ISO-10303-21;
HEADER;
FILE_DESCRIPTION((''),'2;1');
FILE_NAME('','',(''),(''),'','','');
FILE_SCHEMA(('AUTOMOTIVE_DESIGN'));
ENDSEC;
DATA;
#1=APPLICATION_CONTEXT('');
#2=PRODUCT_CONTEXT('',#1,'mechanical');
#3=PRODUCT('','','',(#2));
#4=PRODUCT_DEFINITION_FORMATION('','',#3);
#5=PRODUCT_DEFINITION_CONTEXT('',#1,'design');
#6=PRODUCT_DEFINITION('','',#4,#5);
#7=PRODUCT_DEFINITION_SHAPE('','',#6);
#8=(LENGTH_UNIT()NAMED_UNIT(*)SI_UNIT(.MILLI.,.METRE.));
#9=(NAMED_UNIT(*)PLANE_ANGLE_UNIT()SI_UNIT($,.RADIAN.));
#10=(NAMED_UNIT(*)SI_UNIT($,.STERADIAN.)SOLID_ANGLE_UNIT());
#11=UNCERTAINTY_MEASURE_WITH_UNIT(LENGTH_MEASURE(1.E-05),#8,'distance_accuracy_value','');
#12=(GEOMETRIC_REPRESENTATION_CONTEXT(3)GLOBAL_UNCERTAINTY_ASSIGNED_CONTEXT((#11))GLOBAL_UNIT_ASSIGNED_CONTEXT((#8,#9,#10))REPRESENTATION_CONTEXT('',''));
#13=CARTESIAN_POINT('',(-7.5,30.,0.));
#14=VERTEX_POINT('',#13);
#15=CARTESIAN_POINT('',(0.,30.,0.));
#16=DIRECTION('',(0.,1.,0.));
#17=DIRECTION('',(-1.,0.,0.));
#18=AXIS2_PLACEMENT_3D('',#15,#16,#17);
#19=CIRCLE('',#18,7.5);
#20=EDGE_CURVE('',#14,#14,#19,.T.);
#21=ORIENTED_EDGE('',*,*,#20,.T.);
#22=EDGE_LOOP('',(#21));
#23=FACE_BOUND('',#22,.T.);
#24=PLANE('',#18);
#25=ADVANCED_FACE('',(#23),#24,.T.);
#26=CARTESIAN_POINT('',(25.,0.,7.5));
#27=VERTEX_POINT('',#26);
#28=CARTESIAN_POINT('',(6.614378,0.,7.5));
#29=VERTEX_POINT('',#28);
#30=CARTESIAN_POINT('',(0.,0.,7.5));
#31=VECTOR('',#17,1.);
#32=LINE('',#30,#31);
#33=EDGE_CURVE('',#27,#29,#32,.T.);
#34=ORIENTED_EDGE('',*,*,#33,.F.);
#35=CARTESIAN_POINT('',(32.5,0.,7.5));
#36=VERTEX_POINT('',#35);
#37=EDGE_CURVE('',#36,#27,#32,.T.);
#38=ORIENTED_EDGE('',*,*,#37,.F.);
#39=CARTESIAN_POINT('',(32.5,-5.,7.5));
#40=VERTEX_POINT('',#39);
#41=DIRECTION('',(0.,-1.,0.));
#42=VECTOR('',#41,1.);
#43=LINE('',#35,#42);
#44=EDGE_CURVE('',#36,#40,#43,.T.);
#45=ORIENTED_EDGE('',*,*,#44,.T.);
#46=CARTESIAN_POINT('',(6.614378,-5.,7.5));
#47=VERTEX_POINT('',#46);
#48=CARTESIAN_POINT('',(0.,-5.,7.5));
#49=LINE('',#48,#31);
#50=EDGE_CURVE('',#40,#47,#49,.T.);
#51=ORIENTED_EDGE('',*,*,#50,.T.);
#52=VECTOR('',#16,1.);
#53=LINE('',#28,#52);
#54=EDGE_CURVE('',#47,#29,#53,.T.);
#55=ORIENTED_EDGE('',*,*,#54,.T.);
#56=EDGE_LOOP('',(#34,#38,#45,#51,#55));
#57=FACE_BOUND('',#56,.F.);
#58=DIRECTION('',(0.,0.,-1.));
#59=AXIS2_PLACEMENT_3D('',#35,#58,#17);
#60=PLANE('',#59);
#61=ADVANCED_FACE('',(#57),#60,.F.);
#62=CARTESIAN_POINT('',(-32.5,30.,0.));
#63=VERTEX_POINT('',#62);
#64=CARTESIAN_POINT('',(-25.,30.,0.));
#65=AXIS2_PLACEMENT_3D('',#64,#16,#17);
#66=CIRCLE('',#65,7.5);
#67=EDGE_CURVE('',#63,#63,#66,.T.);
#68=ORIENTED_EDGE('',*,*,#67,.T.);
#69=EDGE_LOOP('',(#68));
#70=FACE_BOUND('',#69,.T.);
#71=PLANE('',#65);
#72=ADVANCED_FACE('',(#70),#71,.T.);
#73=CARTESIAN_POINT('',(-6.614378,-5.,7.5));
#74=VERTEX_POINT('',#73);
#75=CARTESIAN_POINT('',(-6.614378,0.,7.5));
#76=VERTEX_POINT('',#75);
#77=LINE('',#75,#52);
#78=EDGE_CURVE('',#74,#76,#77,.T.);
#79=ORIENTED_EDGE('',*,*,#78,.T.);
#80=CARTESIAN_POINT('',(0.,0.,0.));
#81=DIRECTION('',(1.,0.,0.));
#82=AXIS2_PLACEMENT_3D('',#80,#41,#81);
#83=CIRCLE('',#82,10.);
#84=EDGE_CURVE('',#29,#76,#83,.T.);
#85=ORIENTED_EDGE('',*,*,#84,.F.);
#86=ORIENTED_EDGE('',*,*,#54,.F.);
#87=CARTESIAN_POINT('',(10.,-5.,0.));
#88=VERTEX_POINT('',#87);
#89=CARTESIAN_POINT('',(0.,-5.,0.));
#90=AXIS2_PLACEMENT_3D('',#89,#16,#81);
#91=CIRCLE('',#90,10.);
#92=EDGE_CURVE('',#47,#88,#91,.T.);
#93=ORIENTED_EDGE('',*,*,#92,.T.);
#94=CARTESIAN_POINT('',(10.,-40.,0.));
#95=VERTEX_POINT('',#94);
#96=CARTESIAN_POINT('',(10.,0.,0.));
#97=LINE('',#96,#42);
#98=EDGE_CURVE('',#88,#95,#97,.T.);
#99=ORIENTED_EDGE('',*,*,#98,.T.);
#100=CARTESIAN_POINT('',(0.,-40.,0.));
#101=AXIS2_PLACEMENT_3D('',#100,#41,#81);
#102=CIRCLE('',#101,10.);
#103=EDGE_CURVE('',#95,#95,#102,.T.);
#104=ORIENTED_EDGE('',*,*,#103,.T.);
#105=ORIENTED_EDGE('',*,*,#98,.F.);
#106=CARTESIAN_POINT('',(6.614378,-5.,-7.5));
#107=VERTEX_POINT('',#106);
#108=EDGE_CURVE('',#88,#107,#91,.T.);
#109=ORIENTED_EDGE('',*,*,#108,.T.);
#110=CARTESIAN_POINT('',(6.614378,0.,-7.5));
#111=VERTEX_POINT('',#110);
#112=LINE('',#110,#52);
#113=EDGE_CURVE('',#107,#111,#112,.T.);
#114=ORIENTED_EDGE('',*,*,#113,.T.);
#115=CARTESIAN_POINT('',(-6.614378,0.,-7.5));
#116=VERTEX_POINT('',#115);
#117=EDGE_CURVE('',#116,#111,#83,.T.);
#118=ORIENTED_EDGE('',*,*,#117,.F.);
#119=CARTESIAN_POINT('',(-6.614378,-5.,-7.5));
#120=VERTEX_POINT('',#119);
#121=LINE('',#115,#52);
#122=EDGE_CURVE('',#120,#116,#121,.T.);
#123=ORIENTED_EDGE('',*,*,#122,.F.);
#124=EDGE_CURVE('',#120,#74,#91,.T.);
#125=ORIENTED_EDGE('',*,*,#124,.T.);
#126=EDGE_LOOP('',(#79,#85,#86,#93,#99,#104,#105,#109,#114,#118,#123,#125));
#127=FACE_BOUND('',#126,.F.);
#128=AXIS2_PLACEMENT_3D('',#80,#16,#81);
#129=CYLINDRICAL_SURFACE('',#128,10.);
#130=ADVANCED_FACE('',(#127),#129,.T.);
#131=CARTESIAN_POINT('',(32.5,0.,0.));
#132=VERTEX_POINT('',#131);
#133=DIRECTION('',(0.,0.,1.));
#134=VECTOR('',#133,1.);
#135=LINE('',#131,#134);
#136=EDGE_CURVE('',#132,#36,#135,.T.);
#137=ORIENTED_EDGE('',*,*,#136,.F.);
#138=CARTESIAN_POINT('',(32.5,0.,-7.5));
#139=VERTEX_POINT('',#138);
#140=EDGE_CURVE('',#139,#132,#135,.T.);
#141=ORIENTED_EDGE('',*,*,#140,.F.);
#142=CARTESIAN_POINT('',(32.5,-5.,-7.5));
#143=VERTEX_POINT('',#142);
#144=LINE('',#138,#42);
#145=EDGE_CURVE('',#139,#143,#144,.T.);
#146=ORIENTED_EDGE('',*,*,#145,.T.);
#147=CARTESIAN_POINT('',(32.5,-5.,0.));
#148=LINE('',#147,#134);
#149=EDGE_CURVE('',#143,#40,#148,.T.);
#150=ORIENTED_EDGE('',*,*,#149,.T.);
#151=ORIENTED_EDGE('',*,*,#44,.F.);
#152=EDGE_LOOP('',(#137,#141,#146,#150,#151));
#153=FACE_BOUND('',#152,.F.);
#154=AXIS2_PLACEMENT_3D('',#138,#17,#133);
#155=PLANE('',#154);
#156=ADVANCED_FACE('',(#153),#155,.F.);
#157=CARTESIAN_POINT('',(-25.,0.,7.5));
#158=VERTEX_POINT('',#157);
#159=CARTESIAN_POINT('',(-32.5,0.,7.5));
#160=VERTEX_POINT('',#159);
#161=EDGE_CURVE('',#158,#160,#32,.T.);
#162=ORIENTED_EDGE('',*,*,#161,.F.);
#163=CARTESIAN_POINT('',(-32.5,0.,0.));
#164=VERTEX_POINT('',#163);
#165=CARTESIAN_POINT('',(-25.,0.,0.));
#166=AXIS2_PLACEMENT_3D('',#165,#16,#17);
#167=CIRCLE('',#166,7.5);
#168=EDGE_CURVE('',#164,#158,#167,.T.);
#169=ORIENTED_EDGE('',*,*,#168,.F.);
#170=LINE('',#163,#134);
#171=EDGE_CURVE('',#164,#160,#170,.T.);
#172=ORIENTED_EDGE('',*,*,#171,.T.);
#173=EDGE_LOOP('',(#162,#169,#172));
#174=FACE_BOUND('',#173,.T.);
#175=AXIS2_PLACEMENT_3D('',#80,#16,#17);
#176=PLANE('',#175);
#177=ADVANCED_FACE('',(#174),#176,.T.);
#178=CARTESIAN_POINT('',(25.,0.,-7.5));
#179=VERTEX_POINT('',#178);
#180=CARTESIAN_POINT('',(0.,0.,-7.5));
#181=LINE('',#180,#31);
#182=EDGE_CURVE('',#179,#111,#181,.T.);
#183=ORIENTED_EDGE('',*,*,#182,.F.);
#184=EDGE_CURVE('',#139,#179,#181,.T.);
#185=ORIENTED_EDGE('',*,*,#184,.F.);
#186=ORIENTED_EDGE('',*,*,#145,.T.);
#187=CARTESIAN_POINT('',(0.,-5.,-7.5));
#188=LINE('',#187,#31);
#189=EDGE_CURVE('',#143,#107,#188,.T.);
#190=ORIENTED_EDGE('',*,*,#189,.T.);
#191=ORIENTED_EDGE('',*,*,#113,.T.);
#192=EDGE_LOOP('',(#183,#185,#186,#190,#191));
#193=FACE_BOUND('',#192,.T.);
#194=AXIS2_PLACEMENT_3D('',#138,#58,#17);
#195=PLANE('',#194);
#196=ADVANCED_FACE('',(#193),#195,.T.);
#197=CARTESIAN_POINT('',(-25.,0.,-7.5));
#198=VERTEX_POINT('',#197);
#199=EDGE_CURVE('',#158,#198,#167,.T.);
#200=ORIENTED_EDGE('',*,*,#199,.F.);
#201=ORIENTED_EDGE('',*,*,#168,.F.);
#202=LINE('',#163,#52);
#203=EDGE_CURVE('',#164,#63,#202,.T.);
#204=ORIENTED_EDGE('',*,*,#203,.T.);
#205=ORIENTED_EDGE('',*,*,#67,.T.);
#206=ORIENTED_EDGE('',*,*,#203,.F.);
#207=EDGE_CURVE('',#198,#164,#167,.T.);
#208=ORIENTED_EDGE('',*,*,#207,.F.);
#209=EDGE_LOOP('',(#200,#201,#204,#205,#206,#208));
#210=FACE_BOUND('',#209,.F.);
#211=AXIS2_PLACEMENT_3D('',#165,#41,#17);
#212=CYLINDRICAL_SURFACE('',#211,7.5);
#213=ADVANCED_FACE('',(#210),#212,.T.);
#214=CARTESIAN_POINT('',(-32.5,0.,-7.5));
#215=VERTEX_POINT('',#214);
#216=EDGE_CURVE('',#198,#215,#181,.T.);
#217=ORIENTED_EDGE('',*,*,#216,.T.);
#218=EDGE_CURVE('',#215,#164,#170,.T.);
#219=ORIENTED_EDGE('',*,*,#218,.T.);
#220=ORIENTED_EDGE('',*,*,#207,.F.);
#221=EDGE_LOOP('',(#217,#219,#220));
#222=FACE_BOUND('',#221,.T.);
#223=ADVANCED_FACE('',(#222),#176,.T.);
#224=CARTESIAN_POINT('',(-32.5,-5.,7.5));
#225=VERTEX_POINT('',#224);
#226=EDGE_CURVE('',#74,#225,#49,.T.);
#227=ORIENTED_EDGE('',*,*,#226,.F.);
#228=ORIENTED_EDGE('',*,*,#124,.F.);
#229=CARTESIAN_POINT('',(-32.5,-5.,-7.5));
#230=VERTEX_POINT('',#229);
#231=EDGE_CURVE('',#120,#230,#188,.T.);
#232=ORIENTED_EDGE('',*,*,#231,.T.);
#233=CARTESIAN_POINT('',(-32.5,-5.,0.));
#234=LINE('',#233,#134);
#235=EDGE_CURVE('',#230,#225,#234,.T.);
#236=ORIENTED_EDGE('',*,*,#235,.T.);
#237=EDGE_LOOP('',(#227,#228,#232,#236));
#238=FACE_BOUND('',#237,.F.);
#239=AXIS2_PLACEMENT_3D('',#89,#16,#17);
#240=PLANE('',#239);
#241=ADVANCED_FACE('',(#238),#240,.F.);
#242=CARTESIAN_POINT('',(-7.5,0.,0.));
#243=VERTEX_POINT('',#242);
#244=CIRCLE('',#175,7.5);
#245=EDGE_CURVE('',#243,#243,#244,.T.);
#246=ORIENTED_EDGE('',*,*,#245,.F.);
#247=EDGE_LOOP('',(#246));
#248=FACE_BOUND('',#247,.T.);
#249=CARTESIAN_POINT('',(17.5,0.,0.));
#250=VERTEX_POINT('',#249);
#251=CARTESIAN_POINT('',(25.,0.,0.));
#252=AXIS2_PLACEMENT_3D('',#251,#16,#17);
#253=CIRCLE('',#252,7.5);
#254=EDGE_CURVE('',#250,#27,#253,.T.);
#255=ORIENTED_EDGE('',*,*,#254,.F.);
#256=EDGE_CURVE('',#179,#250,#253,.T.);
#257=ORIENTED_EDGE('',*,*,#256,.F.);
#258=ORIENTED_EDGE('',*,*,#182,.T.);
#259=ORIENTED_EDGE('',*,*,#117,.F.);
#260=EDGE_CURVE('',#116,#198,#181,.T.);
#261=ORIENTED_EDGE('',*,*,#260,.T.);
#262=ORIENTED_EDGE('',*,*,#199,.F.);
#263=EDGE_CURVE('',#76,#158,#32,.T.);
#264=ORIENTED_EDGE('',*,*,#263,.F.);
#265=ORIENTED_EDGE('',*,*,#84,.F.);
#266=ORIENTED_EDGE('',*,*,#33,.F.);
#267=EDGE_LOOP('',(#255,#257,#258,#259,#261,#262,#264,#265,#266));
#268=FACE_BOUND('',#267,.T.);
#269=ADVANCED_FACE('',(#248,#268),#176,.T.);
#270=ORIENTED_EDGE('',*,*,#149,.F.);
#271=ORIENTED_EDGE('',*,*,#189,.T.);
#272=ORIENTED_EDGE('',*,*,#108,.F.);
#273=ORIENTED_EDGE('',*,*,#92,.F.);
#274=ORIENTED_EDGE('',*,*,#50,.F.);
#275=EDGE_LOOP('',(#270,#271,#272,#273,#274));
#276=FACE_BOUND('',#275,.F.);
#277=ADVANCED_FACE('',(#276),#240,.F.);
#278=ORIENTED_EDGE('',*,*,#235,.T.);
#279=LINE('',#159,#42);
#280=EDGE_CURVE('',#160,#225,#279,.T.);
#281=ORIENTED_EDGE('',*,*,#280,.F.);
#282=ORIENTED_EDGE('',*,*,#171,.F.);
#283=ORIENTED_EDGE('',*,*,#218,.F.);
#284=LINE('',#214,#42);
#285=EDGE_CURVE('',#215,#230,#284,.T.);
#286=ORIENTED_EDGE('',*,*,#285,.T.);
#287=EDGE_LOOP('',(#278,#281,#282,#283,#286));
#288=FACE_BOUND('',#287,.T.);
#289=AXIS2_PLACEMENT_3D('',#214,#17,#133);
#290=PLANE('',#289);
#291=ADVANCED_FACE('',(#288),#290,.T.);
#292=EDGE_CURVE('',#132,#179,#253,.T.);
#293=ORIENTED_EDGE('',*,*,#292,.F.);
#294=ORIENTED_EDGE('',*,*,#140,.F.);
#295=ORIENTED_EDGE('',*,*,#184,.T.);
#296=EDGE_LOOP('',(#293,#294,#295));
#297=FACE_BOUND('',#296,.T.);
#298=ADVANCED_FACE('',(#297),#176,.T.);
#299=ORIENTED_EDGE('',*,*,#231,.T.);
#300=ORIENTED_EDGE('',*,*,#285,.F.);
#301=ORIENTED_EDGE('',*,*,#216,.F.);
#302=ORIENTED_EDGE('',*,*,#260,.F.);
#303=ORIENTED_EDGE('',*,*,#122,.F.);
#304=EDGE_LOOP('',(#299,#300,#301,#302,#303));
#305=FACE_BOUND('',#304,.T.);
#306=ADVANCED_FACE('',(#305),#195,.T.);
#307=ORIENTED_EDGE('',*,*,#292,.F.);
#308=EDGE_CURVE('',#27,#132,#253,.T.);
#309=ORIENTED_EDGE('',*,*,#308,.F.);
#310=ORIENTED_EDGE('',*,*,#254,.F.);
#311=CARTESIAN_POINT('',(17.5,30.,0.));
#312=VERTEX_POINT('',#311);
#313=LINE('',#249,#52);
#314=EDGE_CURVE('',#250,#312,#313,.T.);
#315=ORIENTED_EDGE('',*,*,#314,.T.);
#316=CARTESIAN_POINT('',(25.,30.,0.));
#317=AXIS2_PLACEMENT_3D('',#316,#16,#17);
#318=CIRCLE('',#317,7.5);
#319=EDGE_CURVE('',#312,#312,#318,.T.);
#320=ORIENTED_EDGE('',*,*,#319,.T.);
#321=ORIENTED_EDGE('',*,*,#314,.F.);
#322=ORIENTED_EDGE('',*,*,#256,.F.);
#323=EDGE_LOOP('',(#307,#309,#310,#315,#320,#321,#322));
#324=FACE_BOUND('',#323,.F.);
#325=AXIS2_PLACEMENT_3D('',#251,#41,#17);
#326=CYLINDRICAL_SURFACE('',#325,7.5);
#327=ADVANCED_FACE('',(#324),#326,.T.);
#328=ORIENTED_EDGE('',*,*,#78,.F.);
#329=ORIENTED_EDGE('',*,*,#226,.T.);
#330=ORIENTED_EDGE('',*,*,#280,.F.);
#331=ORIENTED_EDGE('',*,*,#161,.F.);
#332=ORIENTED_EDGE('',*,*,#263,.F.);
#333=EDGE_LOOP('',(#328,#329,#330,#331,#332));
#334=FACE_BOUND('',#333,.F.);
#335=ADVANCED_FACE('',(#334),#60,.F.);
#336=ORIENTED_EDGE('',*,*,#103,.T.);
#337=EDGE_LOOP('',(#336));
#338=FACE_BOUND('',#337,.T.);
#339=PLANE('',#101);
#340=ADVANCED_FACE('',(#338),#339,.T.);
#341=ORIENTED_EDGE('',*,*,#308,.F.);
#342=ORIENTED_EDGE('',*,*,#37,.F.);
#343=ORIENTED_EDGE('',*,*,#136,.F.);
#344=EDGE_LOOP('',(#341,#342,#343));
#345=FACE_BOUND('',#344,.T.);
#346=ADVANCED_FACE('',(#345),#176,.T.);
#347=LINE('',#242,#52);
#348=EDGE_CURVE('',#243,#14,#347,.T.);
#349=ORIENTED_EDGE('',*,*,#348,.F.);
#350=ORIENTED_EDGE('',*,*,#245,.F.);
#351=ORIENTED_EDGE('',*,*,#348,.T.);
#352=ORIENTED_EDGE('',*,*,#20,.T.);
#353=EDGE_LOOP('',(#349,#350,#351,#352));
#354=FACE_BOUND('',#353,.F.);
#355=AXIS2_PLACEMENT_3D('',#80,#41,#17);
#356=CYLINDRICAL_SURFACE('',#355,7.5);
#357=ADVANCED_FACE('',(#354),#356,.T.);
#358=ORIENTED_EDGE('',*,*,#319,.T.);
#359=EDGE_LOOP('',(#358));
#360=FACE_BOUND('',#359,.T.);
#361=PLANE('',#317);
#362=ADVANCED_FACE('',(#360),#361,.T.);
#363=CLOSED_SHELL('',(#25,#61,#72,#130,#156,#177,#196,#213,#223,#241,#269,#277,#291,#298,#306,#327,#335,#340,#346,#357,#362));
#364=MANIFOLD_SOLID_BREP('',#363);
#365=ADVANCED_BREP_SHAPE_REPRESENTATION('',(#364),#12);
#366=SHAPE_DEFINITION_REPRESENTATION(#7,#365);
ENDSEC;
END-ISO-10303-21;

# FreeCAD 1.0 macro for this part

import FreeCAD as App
import Part
import Sketcher
from FreeCAD import Vector

doc = App.newDocument("Part")
params = doc.addObject("Spreadsheet::Sheet", "Params")
for row, (alias, value) in enumerate([
    ("sketch1_diameter", "20 mm"),
    ("pad1_length", "40 mm"),
    ("sketch2_width", "65 mm"),
    ("sketch2_height", "15 mm"),
    ("pad2_length", "5 mm"),
    ("sketch3_diameter", "15 mm"),
    ("pad3_length", "30 mm"),
], start=1):
    params.set(f"A{row}", alias)
    params.set(f"B{row}", "=" + value)
    params.setAlias(f"B{row}", alias)

body = doc.addObject("PartDesign::Body", "Body")

sketch1 = body.newObject("Sketcher::SketchObject", "Sketch")
sketch1.AttachmentSupport = (doc.getObject("XZ_Plane"), [""])
sketch1.MapMode = "FlatFace"
sketch1.addGeometry(Part.Circle(Vector(0, 0, 0), Vector(0, 0, 1), 10), False)
sketch1.addConstraint(Sketcher.Constraint("Coincident", 0, 3, -1, 1))
sketch1.addConstraint(Sketcher.Constraint("Diameter", 0, 20.0))
sketch1.setExpression("Constraints[1]", "Params.sketch1_diameter")
pad1 = body.newObject("PartDesign::Pad", "Pad")
pad1.Profile = sketch1
pad1.setExpression("Length", "Params.pad1_length")

sketch2 = body.newObject("Sketcher::SketchObject", "Sketch001")
sketch2.AttachmentSupport = (doc.getObject("XZ_Plane"), [""])
sketch2.MapMode = "FlatFace"
sketch2.addGeometry(Part.LineSegment(Vector(32, 8, 0), Vector(32, -8, 0)), False)
sketch2.addGeometry(Part.LineSegment(Vector(32, -8, 0), Vector(-32, -8, 0)), False)
sketch2.addGeometry(Part.LineSegment(Vector(-32, -8, 0), Vector(-32, 8, 0)), False)
sketch2.addGeometry(Part.LineSegment(Vector(-32, 8, 0), Vector(32, 8, 0)), False)
sketch2.addConstraint(Sketcher.Constraint("Coincident", 0, 2, 1, 1))
sketch2.addConstraint(Sketcher.Constraint("Coincident", 1, 2, 2, 1))
sketch2.addConstraint(Sketcher.Constraint("Coincident", 2, 2, 3, 1))
sketch2.addConstraint(Sketcher.Constraint("Coincident", 3, 2, 0, 1))
sketch2.addConstraint(Sketcher.Constraint("Vertical", 0))
sketch2.addConstraint(Sketcher.Constraint("Horizontal", 1))
sketch2.addConstraint(Sketcher.Constraint("Vertical", 2))
sketch2.addConstraint(Sketcher.Constraint("Horizontal", 3))
sketch2.addConstraint(Sketcher.Constraint("Symmetric", 0, 2, 2, 2, -1, 1))
sketch2.addConstraint(Sketcher.Constraint("DistanceX", 1, 2, 1, 1, 65.0))
sketch2.addConstraint(Sketcher.Constraint("DistanceY", 0, 2, 0, 1, 15.0))
sketch2.setExpression("Constraints[9]", "Params.sketch2_width")
sketch2.setExpression("Constraints[10]", "Params.sketch2_height")
pad2 = body.newObject("PartDesign::Pad", "Pad001")
pad2.Profile = sketch2
pad2.setExpression("Length", "Params.pad2_length")

sketch3 = body.newObject("Sketcher::SketchObject", "Sketch002")
sketch3.AttachmentSupport = (doc.getObject("XZ_Plane"), [""])
sketch3.MapMode = "FlatFace"
sketch3.addGeometry(Part.Circle(Vector(0, 0, 0), Vector(0, 0, 1), 8), False)
sketch3.addGeometry(Part.Circle(Vector(25, 0, 0), Vector(0, 0, 1), 8), False)
sketch3.addGeometry(Part.Circle(Vector(-25, 0, 0), Vector(0, 0, 1), 8), False)
sketch3.addConstraint(Sketcher.Constraint("Coincident", 0, 3, -1, 1))
sketch3.addConstraint(Sketcher.Constraint("Equal", 0, 1))
sketch3.addConstraint(Sketcher.Constraint("Equal", 1, 2))
sketch3.addConstraint(Sketcher.Constraint("Symmetric", 1, 3, 2, 3, -1, 1))
sketch3.addConstraint(Sketcher.Constraint("PointOnObject", 1, 3, -1))
sketch3.addConstraint(Sketcher.Constraint("Diameter", 0, 15.0))
sketch3.addConstraint(Sketcher.Constraint("DistanceX", -1, 1, 1, 3, 25.0))
sketch3.setExpression("Constraints[5]", "Params.sketch3_diameter")
pad3 = body.newObject("PartDesign::Pad", "Pad002")
pad3.Profile = sketch3
pad3.setExpression("Length", "Params.pad3_length")
pad3.Reversed = True

doc.recompute()
